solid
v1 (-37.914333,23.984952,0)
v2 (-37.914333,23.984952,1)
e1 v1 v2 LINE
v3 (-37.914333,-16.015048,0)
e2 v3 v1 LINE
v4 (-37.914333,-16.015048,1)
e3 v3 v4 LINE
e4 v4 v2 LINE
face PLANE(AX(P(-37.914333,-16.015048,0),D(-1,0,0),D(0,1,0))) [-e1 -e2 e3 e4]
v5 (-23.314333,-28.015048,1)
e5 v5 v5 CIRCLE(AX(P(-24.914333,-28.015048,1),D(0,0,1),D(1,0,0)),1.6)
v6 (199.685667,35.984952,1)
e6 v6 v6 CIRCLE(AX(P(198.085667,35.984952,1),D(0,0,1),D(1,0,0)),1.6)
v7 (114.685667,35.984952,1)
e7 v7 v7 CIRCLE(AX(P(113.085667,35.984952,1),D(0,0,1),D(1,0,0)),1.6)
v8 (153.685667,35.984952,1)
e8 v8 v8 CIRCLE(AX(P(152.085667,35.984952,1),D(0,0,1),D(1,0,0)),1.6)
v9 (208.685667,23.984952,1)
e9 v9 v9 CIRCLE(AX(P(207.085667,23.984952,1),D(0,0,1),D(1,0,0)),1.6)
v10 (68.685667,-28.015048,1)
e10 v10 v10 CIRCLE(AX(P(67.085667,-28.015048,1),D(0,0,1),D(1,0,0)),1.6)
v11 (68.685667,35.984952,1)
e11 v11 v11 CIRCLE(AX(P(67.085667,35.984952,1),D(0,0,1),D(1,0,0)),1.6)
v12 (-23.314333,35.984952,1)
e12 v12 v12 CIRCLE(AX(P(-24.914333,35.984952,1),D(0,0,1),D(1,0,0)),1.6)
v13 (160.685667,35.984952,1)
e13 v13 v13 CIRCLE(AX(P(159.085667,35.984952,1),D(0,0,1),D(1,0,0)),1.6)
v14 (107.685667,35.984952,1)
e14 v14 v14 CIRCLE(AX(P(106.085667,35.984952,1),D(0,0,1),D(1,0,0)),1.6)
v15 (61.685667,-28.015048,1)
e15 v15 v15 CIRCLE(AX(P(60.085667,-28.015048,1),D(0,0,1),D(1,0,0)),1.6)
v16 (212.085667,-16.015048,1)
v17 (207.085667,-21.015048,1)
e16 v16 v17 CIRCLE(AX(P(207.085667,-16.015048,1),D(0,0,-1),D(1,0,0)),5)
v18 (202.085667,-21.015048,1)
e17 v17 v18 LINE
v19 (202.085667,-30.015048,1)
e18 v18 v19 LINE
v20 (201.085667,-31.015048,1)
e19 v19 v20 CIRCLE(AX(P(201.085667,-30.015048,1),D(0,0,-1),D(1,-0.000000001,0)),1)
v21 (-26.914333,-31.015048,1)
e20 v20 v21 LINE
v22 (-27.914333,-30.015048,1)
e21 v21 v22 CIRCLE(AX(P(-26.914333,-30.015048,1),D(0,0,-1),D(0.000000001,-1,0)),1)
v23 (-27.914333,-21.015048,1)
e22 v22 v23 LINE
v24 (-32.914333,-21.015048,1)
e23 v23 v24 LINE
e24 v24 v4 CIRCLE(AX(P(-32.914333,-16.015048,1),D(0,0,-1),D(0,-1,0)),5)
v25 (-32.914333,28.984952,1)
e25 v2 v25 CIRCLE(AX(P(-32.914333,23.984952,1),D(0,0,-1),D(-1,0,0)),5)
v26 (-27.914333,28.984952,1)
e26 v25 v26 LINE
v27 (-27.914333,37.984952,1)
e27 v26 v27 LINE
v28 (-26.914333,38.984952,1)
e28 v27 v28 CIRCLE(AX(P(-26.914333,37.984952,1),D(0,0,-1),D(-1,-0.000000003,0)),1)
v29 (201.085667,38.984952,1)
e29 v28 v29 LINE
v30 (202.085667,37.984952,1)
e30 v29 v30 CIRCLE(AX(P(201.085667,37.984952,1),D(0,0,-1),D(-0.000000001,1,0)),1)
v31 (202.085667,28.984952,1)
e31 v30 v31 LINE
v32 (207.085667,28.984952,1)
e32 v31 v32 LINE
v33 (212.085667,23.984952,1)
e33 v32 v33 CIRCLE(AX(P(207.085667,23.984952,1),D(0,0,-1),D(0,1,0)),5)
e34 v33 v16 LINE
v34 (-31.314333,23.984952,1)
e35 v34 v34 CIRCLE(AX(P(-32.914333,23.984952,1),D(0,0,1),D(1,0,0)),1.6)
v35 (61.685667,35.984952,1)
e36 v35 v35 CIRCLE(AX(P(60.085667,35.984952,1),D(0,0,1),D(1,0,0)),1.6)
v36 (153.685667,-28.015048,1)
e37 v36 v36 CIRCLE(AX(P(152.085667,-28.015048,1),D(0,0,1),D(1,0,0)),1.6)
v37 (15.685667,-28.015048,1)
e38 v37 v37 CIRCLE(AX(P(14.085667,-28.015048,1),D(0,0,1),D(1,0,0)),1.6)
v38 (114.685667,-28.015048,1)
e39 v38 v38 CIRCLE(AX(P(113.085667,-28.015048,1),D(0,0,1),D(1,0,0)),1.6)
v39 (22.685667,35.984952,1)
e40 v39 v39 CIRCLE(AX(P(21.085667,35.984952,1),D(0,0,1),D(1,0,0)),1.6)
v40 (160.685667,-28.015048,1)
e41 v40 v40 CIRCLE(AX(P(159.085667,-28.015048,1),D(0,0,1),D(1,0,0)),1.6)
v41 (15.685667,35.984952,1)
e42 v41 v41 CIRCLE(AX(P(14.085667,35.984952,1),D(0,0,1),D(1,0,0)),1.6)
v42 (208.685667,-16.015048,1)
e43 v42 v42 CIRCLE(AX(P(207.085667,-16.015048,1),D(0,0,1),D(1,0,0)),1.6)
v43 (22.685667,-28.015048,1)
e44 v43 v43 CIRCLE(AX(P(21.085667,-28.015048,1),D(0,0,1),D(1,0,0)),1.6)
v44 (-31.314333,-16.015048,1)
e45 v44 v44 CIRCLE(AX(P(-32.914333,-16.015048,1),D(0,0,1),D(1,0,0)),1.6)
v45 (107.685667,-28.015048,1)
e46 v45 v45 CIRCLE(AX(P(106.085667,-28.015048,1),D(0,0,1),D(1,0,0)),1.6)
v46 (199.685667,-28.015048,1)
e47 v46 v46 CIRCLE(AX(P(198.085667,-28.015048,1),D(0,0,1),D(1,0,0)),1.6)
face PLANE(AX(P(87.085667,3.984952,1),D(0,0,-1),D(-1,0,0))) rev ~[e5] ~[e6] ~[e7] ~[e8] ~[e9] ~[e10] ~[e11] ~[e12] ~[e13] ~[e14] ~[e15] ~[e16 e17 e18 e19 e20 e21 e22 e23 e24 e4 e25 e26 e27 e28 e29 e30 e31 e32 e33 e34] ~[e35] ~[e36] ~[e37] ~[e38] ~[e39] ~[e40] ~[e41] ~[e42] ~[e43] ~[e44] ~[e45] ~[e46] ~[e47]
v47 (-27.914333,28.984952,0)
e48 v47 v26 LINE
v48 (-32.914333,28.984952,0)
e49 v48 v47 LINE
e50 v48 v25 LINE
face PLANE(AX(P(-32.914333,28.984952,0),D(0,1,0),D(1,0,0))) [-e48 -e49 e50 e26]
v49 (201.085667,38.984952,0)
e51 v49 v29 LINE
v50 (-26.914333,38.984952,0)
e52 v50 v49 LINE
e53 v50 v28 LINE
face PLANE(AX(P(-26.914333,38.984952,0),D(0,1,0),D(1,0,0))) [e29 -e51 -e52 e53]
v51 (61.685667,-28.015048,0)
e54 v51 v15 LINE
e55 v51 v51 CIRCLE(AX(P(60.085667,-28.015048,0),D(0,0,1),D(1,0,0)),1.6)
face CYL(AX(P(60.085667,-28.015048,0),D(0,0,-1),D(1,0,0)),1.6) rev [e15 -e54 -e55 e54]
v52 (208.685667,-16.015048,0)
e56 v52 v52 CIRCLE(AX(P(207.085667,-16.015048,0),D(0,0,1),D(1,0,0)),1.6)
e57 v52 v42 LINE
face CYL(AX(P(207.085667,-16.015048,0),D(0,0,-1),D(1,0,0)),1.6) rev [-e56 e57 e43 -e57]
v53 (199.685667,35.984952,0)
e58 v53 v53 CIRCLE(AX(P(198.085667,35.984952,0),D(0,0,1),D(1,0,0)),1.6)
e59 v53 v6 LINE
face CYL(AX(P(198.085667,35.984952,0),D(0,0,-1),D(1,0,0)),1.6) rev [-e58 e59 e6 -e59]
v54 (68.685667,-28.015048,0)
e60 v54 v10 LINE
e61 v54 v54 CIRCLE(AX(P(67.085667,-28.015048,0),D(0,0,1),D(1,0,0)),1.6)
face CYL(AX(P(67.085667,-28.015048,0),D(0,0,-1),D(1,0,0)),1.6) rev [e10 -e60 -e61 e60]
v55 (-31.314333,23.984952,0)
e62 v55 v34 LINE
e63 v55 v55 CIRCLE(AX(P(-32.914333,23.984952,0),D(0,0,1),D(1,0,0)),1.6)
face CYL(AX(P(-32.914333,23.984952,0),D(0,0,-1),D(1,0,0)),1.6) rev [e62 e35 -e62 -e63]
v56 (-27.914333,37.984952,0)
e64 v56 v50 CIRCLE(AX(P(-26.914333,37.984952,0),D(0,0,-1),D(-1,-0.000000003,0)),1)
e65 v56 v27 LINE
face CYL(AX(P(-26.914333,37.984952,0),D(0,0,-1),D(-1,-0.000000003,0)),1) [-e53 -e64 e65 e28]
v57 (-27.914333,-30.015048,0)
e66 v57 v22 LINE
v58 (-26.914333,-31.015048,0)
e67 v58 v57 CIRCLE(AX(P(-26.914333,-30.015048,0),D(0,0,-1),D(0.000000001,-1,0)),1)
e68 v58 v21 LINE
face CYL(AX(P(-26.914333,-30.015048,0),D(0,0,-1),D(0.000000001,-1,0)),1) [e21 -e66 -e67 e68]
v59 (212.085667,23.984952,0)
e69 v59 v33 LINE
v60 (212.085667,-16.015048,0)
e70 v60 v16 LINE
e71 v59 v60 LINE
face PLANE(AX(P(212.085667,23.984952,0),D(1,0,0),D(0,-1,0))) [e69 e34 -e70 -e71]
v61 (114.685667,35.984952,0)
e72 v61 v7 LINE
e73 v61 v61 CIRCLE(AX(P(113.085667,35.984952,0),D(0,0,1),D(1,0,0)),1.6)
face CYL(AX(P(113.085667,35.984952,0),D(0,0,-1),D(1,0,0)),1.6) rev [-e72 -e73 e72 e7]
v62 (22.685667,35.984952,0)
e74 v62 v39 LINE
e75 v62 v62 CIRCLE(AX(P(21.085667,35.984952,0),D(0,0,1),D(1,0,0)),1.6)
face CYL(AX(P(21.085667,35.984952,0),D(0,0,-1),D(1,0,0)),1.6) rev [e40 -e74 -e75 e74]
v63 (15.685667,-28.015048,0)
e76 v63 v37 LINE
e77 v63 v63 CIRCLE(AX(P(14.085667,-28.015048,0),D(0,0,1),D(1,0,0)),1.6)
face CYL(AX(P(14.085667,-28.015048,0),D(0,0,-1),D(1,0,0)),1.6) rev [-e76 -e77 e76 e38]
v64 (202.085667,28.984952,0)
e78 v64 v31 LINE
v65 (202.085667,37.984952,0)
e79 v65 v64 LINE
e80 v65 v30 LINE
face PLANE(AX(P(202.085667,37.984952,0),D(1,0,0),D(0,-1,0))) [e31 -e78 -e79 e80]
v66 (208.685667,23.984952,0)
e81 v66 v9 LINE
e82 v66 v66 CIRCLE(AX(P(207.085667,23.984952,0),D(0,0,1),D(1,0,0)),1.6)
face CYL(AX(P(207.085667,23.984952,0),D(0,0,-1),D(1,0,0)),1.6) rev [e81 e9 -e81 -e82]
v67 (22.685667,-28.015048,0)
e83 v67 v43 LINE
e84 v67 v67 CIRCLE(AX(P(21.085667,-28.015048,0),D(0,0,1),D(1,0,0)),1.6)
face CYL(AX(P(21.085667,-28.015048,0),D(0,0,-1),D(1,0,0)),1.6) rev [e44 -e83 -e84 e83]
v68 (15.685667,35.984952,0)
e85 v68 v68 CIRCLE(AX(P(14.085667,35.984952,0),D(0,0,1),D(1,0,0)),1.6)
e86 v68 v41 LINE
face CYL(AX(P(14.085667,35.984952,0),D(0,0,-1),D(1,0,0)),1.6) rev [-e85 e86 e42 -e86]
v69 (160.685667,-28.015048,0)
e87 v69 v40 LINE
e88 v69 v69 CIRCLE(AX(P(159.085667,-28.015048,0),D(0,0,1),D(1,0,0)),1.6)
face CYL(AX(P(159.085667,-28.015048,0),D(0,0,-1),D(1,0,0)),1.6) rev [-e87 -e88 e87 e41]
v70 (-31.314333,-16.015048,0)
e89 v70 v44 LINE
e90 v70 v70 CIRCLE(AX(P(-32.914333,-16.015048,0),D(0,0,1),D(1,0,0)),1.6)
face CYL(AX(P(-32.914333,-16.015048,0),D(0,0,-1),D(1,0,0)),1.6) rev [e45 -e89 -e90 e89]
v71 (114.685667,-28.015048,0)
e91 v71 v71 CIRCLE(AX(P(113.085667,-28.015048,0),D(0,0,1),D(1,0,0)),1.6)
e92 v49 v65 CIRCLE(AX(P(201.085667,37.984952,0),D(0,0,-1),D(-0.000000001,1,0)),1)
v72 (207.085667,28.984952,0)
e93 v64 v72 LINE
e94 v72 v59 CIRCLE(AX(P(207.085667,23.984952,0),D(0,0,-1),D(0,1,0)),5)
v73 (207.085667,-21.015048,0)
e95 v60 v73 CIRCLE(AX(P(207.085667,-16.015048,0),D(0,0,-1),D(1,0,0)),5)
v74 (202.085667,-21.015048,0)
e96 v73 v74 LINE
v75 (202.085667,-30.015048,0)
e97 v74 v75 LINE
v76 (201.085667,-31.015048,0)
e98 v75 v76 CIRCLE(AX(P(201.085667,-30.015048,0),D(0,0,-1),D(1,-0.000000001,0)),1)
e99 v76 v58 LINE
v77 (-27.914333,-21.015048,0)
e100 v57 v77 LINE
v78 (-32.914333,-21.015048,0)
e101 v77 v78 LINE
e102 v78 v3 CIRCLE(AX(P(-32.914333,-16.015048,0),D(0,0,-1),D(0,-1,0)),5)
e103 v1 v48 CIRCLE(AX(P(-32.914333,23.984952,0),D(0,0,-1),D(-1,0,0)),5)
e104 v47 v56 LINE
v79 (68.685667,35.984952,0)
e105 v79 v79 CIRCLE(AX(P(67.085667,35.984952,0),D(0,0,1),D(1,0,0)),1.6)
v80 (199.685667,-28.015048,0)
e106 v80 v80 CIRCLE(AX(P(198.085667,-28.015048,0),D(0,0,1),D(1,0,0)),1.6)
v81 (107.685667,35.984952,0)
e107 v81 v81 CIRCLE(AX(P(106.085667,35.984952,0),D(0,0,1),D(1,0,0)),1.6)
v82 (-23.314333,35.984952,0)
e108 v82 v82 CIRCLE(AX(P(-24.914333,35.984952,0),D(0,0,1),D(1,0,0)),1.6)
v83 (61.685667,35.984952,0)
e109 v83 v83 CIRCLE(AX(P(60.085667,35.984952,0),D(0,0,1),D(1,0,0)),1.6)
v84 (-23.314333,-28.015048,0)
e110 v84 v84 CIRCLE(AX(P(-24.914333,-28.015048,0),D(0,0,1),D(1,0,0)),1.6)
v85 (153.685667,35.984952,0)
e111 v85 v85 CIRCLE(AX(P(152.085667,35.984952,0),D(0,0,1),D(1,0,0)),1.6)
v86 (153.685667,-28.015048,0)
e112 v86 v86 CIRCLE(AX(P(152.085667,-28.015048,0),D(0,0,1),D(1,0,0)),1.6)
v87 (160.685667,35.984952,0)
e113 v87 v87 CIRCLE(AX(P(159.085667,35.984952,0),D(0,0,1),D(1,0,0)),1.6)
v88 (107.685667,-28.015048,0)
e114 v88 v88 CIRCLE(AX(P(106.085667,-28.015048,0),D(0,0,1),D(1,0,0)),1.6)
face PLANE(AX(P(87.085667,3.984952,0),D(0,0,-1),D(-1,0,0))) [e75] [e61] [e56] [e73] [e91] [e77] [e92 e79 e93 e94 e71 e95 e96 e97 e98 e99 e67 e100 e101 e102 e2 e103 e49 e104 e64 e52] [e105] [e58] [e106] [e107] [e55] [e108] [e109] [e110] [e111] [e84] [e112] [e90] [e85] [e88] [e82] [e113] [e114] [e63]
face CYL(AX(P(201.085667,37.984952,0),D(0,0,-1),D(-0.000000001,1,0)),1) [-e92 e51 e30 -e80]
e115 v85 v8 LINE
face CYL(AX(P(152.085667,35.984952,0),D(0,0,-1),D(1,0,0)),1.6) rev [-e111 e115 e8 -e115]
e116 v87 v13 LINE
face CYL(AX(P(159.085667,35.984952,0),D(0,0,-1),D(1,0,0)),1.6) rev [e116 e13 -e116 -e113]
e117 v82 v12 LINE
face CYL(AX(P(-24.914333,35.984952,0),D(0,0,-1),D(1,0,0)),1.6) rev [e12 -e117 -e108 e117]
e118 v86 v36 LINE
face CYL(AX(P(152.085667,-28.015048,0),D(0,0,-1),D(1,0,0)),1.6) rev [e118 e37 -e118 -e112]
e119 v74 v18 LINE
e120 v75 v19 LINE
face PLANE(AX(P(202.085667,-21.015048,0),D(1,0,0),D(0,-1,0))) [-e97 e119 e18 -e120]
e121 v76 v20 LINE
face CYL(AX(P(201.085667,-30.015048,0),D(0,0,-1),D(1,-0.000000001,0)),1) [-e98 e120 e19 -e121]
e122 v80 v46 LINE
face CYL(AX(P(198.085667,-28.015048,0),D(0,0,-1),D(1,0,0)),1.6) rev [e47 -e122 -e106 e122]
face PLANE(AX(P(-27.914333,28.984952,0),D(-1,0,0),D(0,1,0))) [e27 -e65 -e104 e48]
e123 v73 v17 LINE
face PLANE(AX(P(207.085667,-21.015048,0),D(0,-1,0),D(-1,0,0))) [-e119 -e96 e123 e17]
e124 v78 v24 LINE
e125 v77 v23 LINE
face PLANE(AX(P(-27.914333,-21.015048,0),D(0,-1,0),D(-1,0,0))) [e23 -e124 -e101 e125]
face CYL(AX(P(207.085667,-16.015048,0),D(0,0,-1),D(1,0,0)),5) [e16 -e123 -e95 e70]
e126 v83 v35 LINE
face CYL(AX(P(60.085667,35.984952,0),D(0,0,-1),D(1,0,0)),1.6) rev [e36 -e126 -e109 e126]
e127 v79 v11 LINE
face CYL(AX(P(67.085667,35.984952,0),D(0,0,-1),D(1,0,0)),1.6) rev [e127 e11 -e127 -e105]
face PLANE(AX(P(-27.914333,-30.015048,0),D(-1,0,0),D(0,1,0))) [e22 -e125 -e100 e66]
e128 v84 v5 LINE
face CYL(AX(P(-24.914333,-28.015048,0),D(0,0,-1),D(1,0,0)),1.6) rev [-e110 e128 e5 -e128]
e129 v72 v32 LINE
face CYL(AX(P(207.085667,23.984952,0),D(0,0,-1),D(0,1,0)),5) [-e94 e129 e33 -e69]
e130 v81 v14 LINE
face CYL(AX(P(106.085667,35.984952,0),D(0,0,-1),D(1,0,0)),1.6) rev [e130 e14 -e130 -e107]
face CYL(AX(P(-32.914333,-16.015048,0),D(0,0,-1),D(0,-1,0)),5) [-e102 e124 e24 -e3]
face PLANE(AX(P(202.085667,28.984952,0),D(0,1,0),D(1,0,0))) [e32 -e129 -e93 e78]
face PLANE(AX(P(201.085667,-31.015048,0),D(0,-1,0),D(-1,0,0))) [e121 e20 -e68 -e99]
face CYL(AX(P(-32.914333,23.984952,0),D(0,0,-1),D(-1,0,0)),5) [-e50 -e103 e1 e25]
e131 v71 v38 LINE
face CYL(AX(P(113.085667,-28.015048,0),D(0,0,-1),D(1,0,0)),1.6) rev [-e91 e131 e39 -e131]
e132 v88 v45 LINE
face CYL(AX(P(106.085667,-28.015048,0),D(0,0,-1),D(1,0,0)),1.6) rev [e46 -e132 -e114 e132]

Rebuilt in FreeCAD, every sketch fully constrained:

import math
import FreeCAD as App
import Part
import Sketcher
from FreeCAD import Vector

doc = App.newDocument("Part")
body = doc.addObject("PartDesign::Body", "Body")

sketch1 = body.newObject("Sketcher::SketchObject", "Sketch")
sketch1.AttachmentSupport = (doc.getObject("XY_Plane"), [""])
sketch1.MapMode = "FlatFace"
sketch1.addGeometry([
    Part.LineSegment(Vector(202.1, -30, 0), Vector(202.1, -21, 0)),
    Part.LineSegment(Vector(202.1, -21, 0), Vector(207.1, -21, 0)),
    Part.ArcOfCircle(Part.Circle(Vector(207.1, -16, 0), Vector(0, 0, 1), 5), math.radians(-90), math.radians(0)),
    Part.LineSegment(Vector(212.1, -16, 0), Vector(212.1, 24, 0)),
    Part.ArcOfCircle(Part.Circle(Vector(207.1, 24, 0), Vector(0, 0, 1), 5), math.radians(0), math.radians(90)),
    Part.LineSegment(Vector(207.1, 29, 0), Vector(202.1, 29, 0)),
    Part.LineSegment(Vector(202.1, 29, 0), Vector(202.1, 38, 0)),
    Part.ArcOfCircle(Part.Circle(Vector(201.1, 38, 0), Vector(0, 0, 1), 1), math.radians(0), math.radians(90)),
    Part.LineSegment(Vector(201.1, 39, 0), Vector(-26.9, 39, 0)),
    Part.ArcOfCircle(Part.Circle(Vector(-26.9, 38, 0), Vector(0, 0, 1), 1), math.radians(90), math.radians(180)),
    Part.LineSegment(Vector(-27.9, 38, 0), Vector(-27.9, 29, 0)),
    Part.LineSegment(Vector(-27.9, 29, 0), Vector(-32.9, 29, 0)),
    Part.ArcOfCircle(Part.Circle(Vector(-32.9, 24, 0), Vector(0, 0, 1), 5), math.radians(90), math.radians(180)),
    Part.LineSegment(Vector(-37.9, 24, 0), Vector(-37.9, -16, 0)),
    Part.ArcOfCircle(Part.Circle(Vector(-32.9, -16, 0), Vector(0, 0, 1), 5), math.radians(180), math.radians(270)),
    Part.LineSegment(Vector(-32.9, -21, 0), Vector(-27.9, -21, 0)),
    Part.LineSegment(Vector(-27.9, -21, 0), Vector(-27.9, -30, 0)),
    Part.ArcOfCircle(Part.Circle(Vector(-26.9, -30, 0), Vector(0, 0, 1), 1), math.radians(180), math.radians(270)),
    Part.LineSegment(Vector(-26.9, -31, 0), Vector(201.1, -31, 0)),
    Part.ArcOfCircle(Part.Circle(Vector(201.1, -30, 0), Vector(0, 0, 1), 1), math.radians(-90), math.radians(0)),
    Part.Circle(Vector(198.1, -28, 0), Vector(0, 0, 1), 1.6),
    Part.Circle(Vector(159.1, -28, 0), Vector(0, 0, 1), 1.6),
    Part.Circle(Vector(152.1, -28, 0), Vector(0, 0, 1), 1.6),
    Part.Circle(Vector(207.1, -16, 0), Vector(0, 0, 1), 1.6),
    Part.Circle(Vector(113.1, -28, 0), Vector(0, 0, 1), 1.6),
    Part.Circle(Vector(106.1, -28, 0), Vector(0, 0, 1), 1.6),
    Part.Circle(Vector(67.1, -28, 0), Vector(0, 0, 1), 1.6),
    Part.Circle(Vector(60.1, -28, 0), Vector(0, 0, 1), 1.6),
    Part.Circle(Vector(21.1, -28, 0), Vector(0, 0, 1), 1.6),
    Part.Circle(Vector(14.1, -28, 0), Vector(0, 0, 1), 1.6),
    Part.Circle(Vector(-24.9, -28, 0), Vector(0, 0, 1), 1.6),
    Part.Circle(Vector(-32.9, -16, 0), Vector(0, 0, 1), 1.6),
    Part.Circle(Vector(207.1, 24, 0), Vector(0, 0, 1), 1.6),
    Part.Circle(Vector(198.1, 36, 0), Vector(0, 0, 1), 1.6),
    Part.Circle(Vector(159.1, 36, 0), Vector(0, 0, 1), 1.6),
    Part.Circle(Vector(152.1, 36, 0), Vector(0, 0, 1), 1.6),
    Part.Circle(Vector(113.1, 36, 0), Vector(0, 0, 1), 1.6),
    Part.Circle(Vector(106.1, 36, 0), Vector(0, 0, 1), 1.6),
    Part.Circle(Vector(67.1, 36, 0), Vector(0, 0, 1), 1.6),
    Part.Circle(Vector(60.1, 36, 0), Vector(0, 0, 1), 1.6),
    Part.Circle(Vector(-32.9, 24, 0), Vector(0, 0, 1), 1.6),
    Part.Circle(Vector(21.1, 36, 0), Vector(0, 0, 1), 1.6),
    Part.Circle(Vector(14.1, 36, 0), Vector(0, 0, 1), 1.6),
    Part.Circle(Vector(-24.9, 36, 0), Vector(0, 0, 1), 1.6),
], False)
sketch1.addConstraint([
    Sketcher.Constraint("Coincident", 0, 2, 1, 1),
    Sketcher.Constraint("Tangent", 1, 2, 2, 1),
    Sketcher.Constraint("Tangent", 2, 2, 3, 1),
    Sketcher.Constraint("Tangent", 3, 2, 4, 1),
    Sketcher.Constraint("Tangent", 4, 2, 5, 1),
    Sketcher.Constraint("Coincident", 5, 2, 6, 1),
    Sketcher.Constraint("Tangent", 6, 2, 7, 1),
    Sketcher.Constraint("Tangent", 7, 2, 8, 1),
    Sketcher.Constraint("Tangent", 8, 2, 9, 1),
    Sketcher.Constraint("Tangent", 9, 2, 10, 1),
    Sketcher.Constraint("Coincident", 10, 2, 11, 1),
    Sketcher.Constraint("Tangent", 11, 2, 12, 1),
    Sketcher.Constraint("Tangent", 12, 2, 13, 1),
    Sketcher.Constraint("Tangent", 13, 2, 14, 1),
    Sketcher.Constraint("Tangent", 14, 2, 15, 1),
    Sketcher.Constraint("Coincident", 15, 2, 16, 1),
    Sketcher.Constraint("Tangent", 16, 2, 17, 1),
    Sketcher.Constraint("Tangent", 17, 2, 18, 1),
    Sketcher.Constraint("Tangent", 18, 2, 19, 1),
    Sketcher.Constraint("Tangent", 19, 2, 0, 1),
    Sketcher.Constraint("Vertical", 0),
    Sketcher.Constraint("Horizontal", 1),
    Sketcher.Constraint("Vertical", 3),
    Sketcher.Constraint("Horizontal", 5),
    Sketcher.Constraint("Vertical", 6),
    Sketcher.Constraint("Horizontal", 8),
    Sketcher.Constraint("Vertical", 10),
    Sketcher.Constraint("Horizontal", 11),
    Sketcher.Constraint("Vertical", 13),
    Sketcher.Constraint("Horizontal", 15),
    Sketcher.Constraint("Vertical", 16),
    Sketcher.Constraint("Horizontal", 18),
    Sketcher.Constraint("Coincident", 23, 3, 2, 3),
    Sketcher.Constraint("Coincident", 31, 3, 14, 3),
    Sketcher.Constraint("Coincident", 32, 3, 4, 3),
    Sketcher.Constraint("Coincident", 40, 3, 12, 3),
    Sketcher.Constraint("Equal", 2, 4),
    Sketcher.Constraint("Equal", 7, 9),
    Sketcher.Constraint("Equal", 4, 12),
    Sketcher.Constraint("Equal", 12, 14),
    Sketcher.Constraint("Equal", 9, 17),
    Sketcher.Constraint("Equal", 17, 19),
    Sketcher.Constraint("Equal", 20, 21),
    Sketcher.Constraint("Equal", 21, 22),
    Sketcher.Constraint("Equal", 22, 23),
    Sketcher.Constraint("Equal", 23, 24),
    Sketcher.Constraint("Equal", 24, 25),
    Sketcher.Constraint("Equal", 25, 26),
    Sketcher.Constraint("Equal", 26, 27),
    Sketcher.Constraint("Equal", 27, 28),
    Sketcher.Constraint("Equal", 28, 29),
    Sketcher.Constraint("Equal", 29, 30),
    Sketcher.Constraint("Equal", 30, 31),
    Sketcher.Constraint("Equal", 31, 32),
    Sketcher.Constraint("Equal", 32, 33),
    Sketcher.Constraint("Equal", 33, 34),
    Sketcher.Constraint("Equal", 34, 35),
    Sketcher.Constraint("Equal", 35, 36),
    Sketcher.Constraint("Equal", 36, 37),
    Sketcher.Constraint("Equal", 37, 38),
    Sketcher.Constraint("Equal", 38, 39),
    Sketcher.Constraint("Equal", 39, 40),
    Sketcher.Constraint("Equal", 40, 41),
    Sketcher.Constraint("Equal", 41, 42),
    Sketcher.Constraint("Equal", 42, 43),
    Sketcher.Constraint("Horizontal", 4, 3, 12, 3),
    Sketcher.Constraint("Horizontal", 2, 3, 14, 3),
    Sketcher.Constraint("Horizontal", 20, 3, 21, 3),
    Sketcher.Constraint("Horizontal", 21, 3, 22, 3),
    Sketcher.Constraint("Horizontal", 22, 3, 24, 3),
    Sketcher.Constraint("Horizontal", 24, 3, 25, 3),
    Sketcher.Constraint("Horizontal", 25, 3, 26, 3),
    Sketcher.Constraint("Horizontal", 26, 3, 27, 3),
    Sketcher.Constraint("Horizontal", 27, 3, 28, 3),
    Sketcher.Constraint("Horizontal", 28, 3, 29, 3),
    Sketcher.Constraint("Horizontal", 29, 3, 30, 3),
    Sketcher.Constraint("Horizontal", 33, 3, 34, 3),
    Sketcher.Constraint("Horizontal", 34, 3, 35, 3),
    Sketcher.Constraint("Horizontal", 35, 3, 36, 3),
    Sketcher.Constraint("Horizontal", 36, 3, 37, 3),
    Sketcher.Constraint("Horizontal", 37, 3, 38, 3),
    Sketcher.Constraint("Horizontal", 38, 3, 39, 3),
    Sketcher.Constraint("Horizontal", 39, 3, 41, 3),
    Sketcher.Constraint("Horizontal", 41, 3, 42, 3),
    Sketcher.Constraint("Horizontal", 42, 3, 43, 3),
    Sketcher.Constraint("Vertical", 9, 3, 17, 3),
    Sketcher.Constraint("Vertical", 7, 3, 19, 3),
    Sketcher.Constraint("Vertical", 20, 3, 33, 3),
    Sketcher.Constraint("Vertical", 21, 3, 34, 3),
    Sketcher.Constraint("Vertical", 22, 3, 35, 3),
    Sketcher.Constraint("Vertical", 24, 3, 36, 3),
    Sketcher.Constraint("Vertical", 25, 3, 37, 3),
    Sketcher.Constraint("Vertical", 26, 3, 38, 3),
    Sketcher.Constraint("Vertical", 27, 3, 39, 3),
    Sketcher.Constraint("Vertical", 28, 3, 41, 3),
    Sketcher.Constraint("Vertical", 29, 3, 42, 3),
    Sketcher.Constraint("Vertical", 30, 3, 43, 3),
    Sketcher.Constraint("Equal", 5, 11),
    Sketcher.Constraint("Equal", 0, 6),
    Sketcher.Constraint("Radius", 2, 5.0),
    Sketcher.Constraint("Radius", 7, 1.0),
    Sketcher.Constraint("Diameter", 20, 3.2),
    Sketcher.Constraint("DistanceX", 1, 1, 1, 2, 5.0),
    Sketcher.Constraint("DistanceX", 8, 2, 8, 1, 228.0),
    Sketcher.Constraint("DistanceY", 0, 1, 0, 2, 9.0),
    Sketcher.Constraint("DistanceY", 3, 1, 3, 2, 40.0),
    Sketcher.Constraint("DistanceX", 20, 3, 19, 3, 3.0),
    Sketcher.Constraint("DistanceY", 19, 3, 20, 3, 2.0),
    Sketcher.Constraint("DistanceX", 21, 3, 20, 3, 39.0),
    Sketcher.Constraint("DistanceX", 22, 3, 21, 3, 7.0),
    Sketcher.Constraint("DistanceX", 24, 3, 22, 3, 39.0),
    Sketcher.Constraint("DistanceX", 25, 3, 24, 3, 7.0),
    Sketcher.Constraint("DistanceX", 26, 3, 25, 3, 39.0),
    Sketcher.Constraint("DistanceX", 27, 3, 26, 3, 7.0),
    Sketcher.Constraint("DistanceX", 28, 3, 27, 3, 39.0),
    Sketcher.Constraint("DistanceX", 29, 3, 28, 3, 7.0),
    Sketcher.Constraint("DistanceX", 17, 3, 30, 3, 2.0),
    Sketcher.Constraint("DistanceY", 33, 3, 7, 3, 2.0),
    Sketcher.Constraint("DistanceY", 2, 3, -1, 1, 16.015048),
    Sketcher.Constraint("DistanceX", -1, 1, 2, 3, 207.085667),
])
pad1 = body.newObject("PartDesign::Pad", "Pad")
pad1.Profile = sketch1
pad1.Length = 1

doc.recompute()
